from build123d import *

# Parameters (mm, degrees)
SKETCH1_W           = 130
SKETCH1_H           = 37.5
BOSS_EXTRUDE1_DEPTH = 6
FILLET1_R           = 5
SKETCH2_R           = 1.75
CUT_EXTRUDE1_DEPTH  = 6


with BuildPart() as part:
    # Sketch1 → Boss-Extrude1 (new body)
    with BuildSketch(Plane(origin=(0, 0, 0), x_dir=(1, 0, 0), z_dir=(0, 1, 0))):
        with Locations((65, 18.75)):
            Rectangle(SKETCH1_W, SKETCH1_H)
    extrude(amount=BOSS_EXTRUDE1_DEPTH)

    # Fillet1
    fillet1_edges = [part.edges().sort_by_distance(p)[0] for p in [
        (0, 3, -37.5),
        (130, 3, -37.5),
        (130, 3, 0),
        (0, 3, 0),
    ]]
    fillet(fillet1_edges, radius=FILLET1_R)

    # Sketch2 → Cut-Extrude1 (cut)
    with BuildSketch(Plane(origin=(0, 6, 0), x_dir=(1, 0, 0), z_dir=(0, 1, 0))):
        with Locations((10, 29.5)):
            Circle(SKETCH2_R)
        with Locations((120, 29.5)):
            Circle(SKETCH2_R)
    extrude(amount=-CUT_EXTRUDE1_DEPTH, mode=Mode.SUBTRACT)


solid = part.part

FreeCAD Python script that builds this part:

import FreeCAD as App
import Part
import Sketcher

V = App.Vector


def edges_at(feature, points):
    """Names of the edges that pass closest to the given points."""
    edges = feature.Shape.Edges
    near = lambda p: min(range(len(edges)), key=lambda i: edges[i].distToShape(Part.Vertex(*p))[0])
    return sorted({f"Edge{near(p) + 1}" for p in points})

doc = App.newDocument("Part")
body = doc.addObject("PartDesign::Body", "Body")

# Sketch on XZ plane
sketch1 = body.newObject("Sketcher::SketchObject", "Sketch")
sketch1.AttachmentSupport = (doc.getObject("XZ_Plane"), [""])
sketch1.MapMode = "FlatFace"
sketch1.addGeometry([
    Part.LineSegment(V(0, -37.5, 0), V(0, 0, 0)),
    Part.LineSegment(V(0, 0, 0), V(130, 0, 0)),
    Part.LineSegment(V(130, 0, 0), V(130, -37.5, 0)),
    Part.LineSegment(V(130, -37.5, 0), V(0, -37.5, 0)),
], False)
sketch1.addConstraint([
    Sketcher.Constraint("Coincident", 0, 2, 1, 1),
    Sketcher.Constraint("Coincident", 1, 2, 2, 1),
    Sketcher.Constraint("Coincident", 2, 2, 3, 1),
    Sketcher.Constraint("Coincident", 3, 2, 0, 1),
    Sketcher.Constraint("Vertical", 0),
    Sketcher.Constraint("Horizontal", 1),
    Sketcher.Constraint("Vertical", 2),
    Sketcher.Constraint("Horizontal", 3),
    Sketcher.Constraint("Coincident", 0, 2, -1, 1),
    Sketcher.Constraint("DistanceX", 1, 1, 1, 2, 130.0),
    Sketcher.Constraint("DistanceY", 0, 1, 0, 2, 37.5),
])
pad1 = body.newObject("PartDesign::Pad", "Pad")
pad1.Profile = sketch1
pad1.Length = 6
pad1.Reversed = True
doc.recompute()

fillet = body.newObject("PartDesign::Fillet", "Fillet")
fillet.Base = (pad1, edges_at(pad1, [
    (0, 3, -37.5),
    (130, 3, -37.5),
    (130, 3, 0),
    (0, 3, 0),
]))
fillet.Radius = 5

# Sketch on XZ plane
sketch2 = body.newObject("Sketcher::SketchObject", "Sketch001")
sketch2.AttachmentSupport = (doc.getObject("XZ_Plane"), [""])
sketch2.MapMode = "FlatFace"
sketch2.AttachmentOffset = App.Placement(V(0, 0, -6), App.Rotation())
sketch2.addGeometry([
    Part.Circle(V(10, -29.5, 0), V(0, 0, 1), 1.75),
    Part.Circle(V(120, -29.5, 0), V(0, 0, 1), 1.75),
], False)
sketch2.addConstraint([
    Sketcher.Constraint("Equal", 0, 1),
    Sketcher.Constraint("Horizontal", 0, 3, 1, 3),
    Sketcher.Constraint("Diameter", 0, 3.5),
    Sketcher.Constraint("DistanceX", -1, 1, 0, 3, 10.0),
    Sketcher.Constraint("DistanceX", -1, 1, 1, 3, 120.0),
    Sketcher.Constraint("DistanceY", 0, 3, -1, 1, 29.5),
])
pocket1 = body.newObject("PartDesign::Pocket", "Pocket")
pocket1.Profile = sketch2
pocket1.Length = 6
pocket1.Reversed = True

doc.recompute()
